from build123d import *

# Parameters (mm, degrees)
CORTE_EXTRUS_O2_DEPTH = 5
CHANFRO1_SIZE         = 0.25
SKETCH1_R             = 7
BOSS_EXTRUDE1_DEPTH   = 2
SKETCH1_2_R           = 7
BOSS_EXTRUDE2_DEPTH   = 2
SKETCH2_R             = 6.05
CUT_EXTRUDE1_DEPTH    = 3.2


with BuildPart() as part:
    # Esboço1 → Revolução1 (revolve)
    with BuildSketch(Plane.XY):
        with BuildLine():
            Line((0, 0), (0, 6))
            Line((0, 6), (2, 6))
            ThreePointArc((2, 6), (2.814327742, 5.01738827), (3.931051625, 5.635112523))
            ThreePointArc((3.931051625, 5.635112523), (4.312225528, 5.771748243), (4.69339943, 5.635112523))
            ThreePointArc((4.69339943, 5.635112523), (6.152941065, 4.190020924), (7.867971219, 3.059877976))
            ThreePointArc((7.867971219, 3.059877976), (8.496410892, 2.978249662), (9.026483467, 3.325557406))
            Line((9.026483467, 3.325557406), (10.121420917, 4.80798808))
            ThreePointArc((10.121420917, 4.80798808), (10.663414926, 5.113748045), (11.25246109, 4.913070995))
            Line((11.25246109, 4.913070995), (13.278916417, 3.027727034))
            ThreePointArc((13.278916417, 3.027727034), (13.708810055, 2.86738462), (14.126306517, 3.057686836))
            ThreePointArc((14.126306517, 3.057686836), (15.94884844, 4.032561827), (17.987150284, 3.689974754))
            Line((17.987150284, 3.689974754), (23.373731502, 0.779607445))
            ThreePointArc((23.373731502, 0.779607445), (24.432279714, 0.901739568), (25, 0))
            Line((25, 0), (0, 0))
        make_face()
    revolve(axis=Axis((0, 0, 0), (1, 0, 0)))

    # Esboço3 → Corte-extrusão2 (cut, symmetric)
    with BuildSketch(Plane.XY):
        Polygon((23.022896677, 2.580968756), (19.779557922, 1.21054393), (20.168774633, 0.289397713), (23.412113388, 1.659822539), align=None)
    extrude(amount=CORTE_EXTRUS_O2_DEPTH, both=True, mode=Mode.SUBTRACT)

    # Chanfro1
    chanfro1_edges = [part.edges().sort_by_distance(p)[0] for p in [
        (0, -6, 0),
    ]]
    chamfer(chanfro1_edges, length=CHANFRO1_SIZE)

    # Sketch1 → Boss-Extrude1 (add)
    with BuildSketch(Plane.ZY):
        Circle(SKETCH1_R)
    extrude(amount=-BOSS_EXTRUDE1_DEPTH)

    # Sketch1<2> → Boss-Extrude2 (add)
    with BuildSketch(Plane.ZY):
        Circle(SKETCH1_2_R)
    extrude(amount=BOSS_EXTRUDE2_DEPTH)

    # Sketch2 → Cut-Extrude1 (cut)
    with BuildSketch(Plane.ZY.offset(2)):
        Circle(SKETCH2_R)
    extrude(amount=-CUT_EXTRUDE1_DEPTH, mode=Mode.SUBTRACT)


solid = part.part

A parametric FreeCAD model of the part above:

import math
import FreeCAD as App
import Part
import Sketcher
from FreeCAD import Vector
Q = App.Units.Quantity


def edges_at(feature, points):
    """Names of the edges that pass closest to the given points."""
    edges = feature.Shape.Edges
    near = lambda p: min(range(len(edges)), key=lambda i: edges[i].distToShape(Part.Vertex(*p))[0])
    return sorted({f"Edge{near(p) + 1}" for p in points})


def add_polygon(sketch, points):
    """Adds a closed chain of lines whose ends are joined by coincident constraints."""
    first, n = sketch.GeometryCount, len(points)
    for a, b in zip(points, points[1:] + points[:1]):
        sketch.addGeometry(Part.LineSegment(App.Vector(*a, 0), App.Vector(*b, 0)), False)
    for i in range(n):
        sketch.addConstraint(Sketcher.Constraint("Coincident", first + i, 2, first + (i + 1) % n, 1))

doc = App.newDocument("Part")
body = doc.addObject("PartDesign::Body", "Body")

# Sketch on XY plane
sketch1 = doc.addObject("Sketcher::SketchObject", "Sketch")
body.addObject(sketch1)
sketch1.AttachmentSupport = (doc.XY_Plane, [""])
sketch1.MapMode = "FlatFace"
sketch1.addGeometry([
    Part.LineSegment(Vector(0, 6, 0), Vector(0, 0, 0)),  # 0
    Part.LineSegment(Vector(0, 0, 0), Vector(25, 0, 0)),  # 1
    Part.ArcOfCircle(Part.Circle(Vector(24, 0, 0), Vector(0, 0, 1), 1), math.radians(0), math.radians(129)),  # 2
    Part.LineSegment(Vector(23.4, 0.8, 0), Vector(18, 3.7, 0)),  # 3
    Part.ArcOfCircle(Part.Circle(Vector(16.5, 0.9, 0), Vector(0, 0, 1), 3.2), math.radians(62), math.radians(137)),  # 4
    Part.ArcOfCircle(Part.Circle(Vector(13.7, 3.5, 0), Vector(0, 0, 1), 0.6), math.radians(-133), math.radians(-43)),  # 5
    Part.LineSegment(Vector(13.3, 3, 0), Vector(11.3, 4.9, 0)),  # 6
    Part.ArcOfCircle(Part.Circle(Vector(10.7, 4.4, 0), Vector(0, 0, 1), 0.8), math.radians(47), math.radians(144)),  # 7
    Part.LineSegment(Vector(10.1, 4.8, 0), Vector(9, 3.3, 0)),  # 8
    Part.ArcOfCircle(Part.Circle(Vector(8.3, 3.9, 0), Vector(0, 0, 1), 0.9), math.radians(-118), math.radians(-36)),  # 9
    Part.ArcOfCircle(Part.Circle(Vector(12.7, 12.3, 0), Vector(0, 0, 1), 10.4), math.radians(-140), math.radians(-118)),  # 10
    Part.ArcOfCircle(Part.Circle(Vector(4.3, 5.2, 0), Vector(0, 0, 1), 0.6), math.radians(51), math.radians(129)),  # 11
    Part.ArcOfCircle(Part.Circle(Vector(3, 6, 0), Vector(0, 0, 1), 1), math.radians(180), math.radians(339)),  # 12
    Part.LineSegment(Vector(2, 6, 0), Vector(0, 6, 0)),  # 13
], False)
sketch1.addConstraint([
    Sketcher.Constraint("Coincident", 0, 2, 1, 1),
    Sketcher.Constraint("Coincident", 1, 2, 2, 1),
    Sketcher.Constraint("Coincident", 2, 2, 3, 1),
    Sketcher.Constraint("Tangent", 3, 2, 4, 1),
    Sketcher.Constraint("Tangent", 4, 2, 5, 2),
    Sketcher.Constraint("Tangent", 5, 1, 6, 1),
    Sketcher.Constraint("Tangent", 6, 2, 7, 1),
    Sketcher.Constraint("Tangent", 7, 2, 8, 1),
    Sketcher.Constraint("Tangent", 8, 2, 9, 2),
    Sketcher.Constraint("Tangent", 9, 1, 10, 2),
    Sketcher.Constraint("Coincident", 10, 1, 11, 1),
    Sketcher.Constraint("Coincident", 11, 2, 12, 2),
    Sketcher.Constraint("Coincident", 12, 1, 13, 1),
    Sketcher.Constraint("Coincident", 13, 2, 0, 1),
    Sketcher.Constraint("Vertical", 0),
    Sketcher.Constraint("Horizontal", 1),
    Sketcher.Constraint("Horizontal", 13),
    Sketcher.Constraint("Coincident", 0, 2, -1, 1),
    Sketcher.Constraint("Equal", 5, 11),
    Sketcher.Constraint("Equal", 2, 12),
    Sketcher.Constraint("PointOnObject", 2, 3, -1),
    Sketcher.Constraint("Horizontal", 10, 1, 11, 2),
    Sketcher.Constraint("Radius", 2, Q("1 mm")),
    Sketcher.Constraint("Radius", 4, Q("3.2 mm")),
    Sketcher.Constraint("Radius", 5, Q("0.6 mm")),
    Sketcher.Constraint("DistanceX", 1, 1, 1, 2, Q("25 mm")),
    Sketcher.Constraint("DistanceX", 13, 2, 13, 1, Q("2 mm")),
    Sketcher.Constraint("DistanceY", 0, 2, 0, 1, Q("6 mm")),
    Sketcher.Constraint("DistanceY", -1, 1, 12, 3, Q("6 mm")),
    Sketcher.Constraint("Radius", 7, Q("0.76137 mm")),
    Sketcher.Constraint("Radius", 9, Q("0.91258 mm")),
    Sketcher.Constraint("Radius", 10, Q("10.402169 mm")),
    Sketcher.Constraint("DistanceY", -1, 1, 10, 3, Q("12.2684 mm")),
    Sketcher.Constraint("DistanceX", -1, 1, 10, 1, Q("4.693399 mm")),
    Sketcher.Constraint("DistanceX", 11, 3, 9, 3, Q("3.9802 mm")),
    Sketcher.Constraint("DistanceX", 7, 3, 3, 2, Q("7.253301 mm")),
    Sketcher.Constraint("Distance", 3, Q("6.12254 mm")),
    Sketcher.Constraint("Distance", 6, Q("2.767859 mm")),
    Sketcher.Constraint("DistanceX", -1, 1, 4, 3, Q("16.466021 mm")),
    Sketcher.Constraint("DistanceY", -1, 1, 4, 3, Q("0.87463 mm")),
    Sketcher.Constraint("DistanceX", -1, 1, 5, 3, Q("13.68761 mm")),
    Sketcher.Constraint("DistanceY", -1, 1, 9, 3, Q("3.867739 mm")),
])
revolution = doc.addObject("PartDesign::Revolution", "Revolution")
body.addObject(revolution)
revolution.Profile = sketch1
revolution.ReferenceAxis = (sketch1, ["H_Axis"])
revolution.Angle = 360

# Sketch on XY plane
sketch2 = doc.addObject("Sketcher::SketchObject", "Sketch001")
body.addObject(sketch2)
sketch2.AttachmentSupport = (doc.XY_Plane, [""])
sketch2.MapMode = "FlatFace"
add_polygon(sketch2, [(23, 2.6), (19.8, 1.2), (20.2, 0.3), (23.4, 1.7)])  # lines 0-3
sketch2.addConstraint([
    Sketcher.Constraint("Perpendicular", 0, 1),
    Sketcher.Constraint("Perpendicular", 1, 2),
    Sketcher.Constraint("Perpendicular", 2, 3),
    Sketcher.Constraint("Distance", 1, Q("1 mm")),
    Sketcher.Constraint("Distance", 0, Q("3.520981 mm")),
    Sketcher.Constraint("DistanceY", -1, 1, 3, 2, Q("2.580969 mm")),
    Sketcher.Constraint("DistanceX", 1, 2, 2, 2, Q("3.243339 mm")),
    Sketcher.Constraint("DistanceX", -1, 1, 0, 2, Q("19.779558 mm")),
])
pocket1 = doc.addObject("PartDesign::Pocket", "Pocket")
body.addObject(pocket1)
pocket1.Profile = sketch2
pocket1.Length = 10
pocket1.Midplane = True
doc.recompute()

chamfer = doc.addObject("PartDesign::Chamfer", "Chamfer")
body.addObject(chamfer)
chamfer.Base = (pocket1, edges_at(pocket1, [(0, -6, 0)]))
chamfer.Size = 0.25

# Sketch on YZ plane
sketch3 = doc.addObject("Sketcher::SketchObject", "Sketch002")
body.addObject(sketch3)
sketch3.AttachmentSupport = (doc.YZ_Plane, [""])
sketch3.MapMode = "FlatFace"
sketch3.addGeometry(Part.Circle(Vector(0, 0, 0), Vector(0, 0, 1), 7), False)
sketch3.addConstraint([
    Sketcher.Constraint("Coincident", 0, 3, -1, 1),
    Sketcher.Constraint("Diameter", 0, Q("14 mm")),
])
pad1 = doc.addObject("PartDesign::Pad", "Pad")
body.addObject(pad1)
pad1.Profile = sketch3
pad1.Length = 2

# Sketch on YZ plane
sketch4 = doc.addObject("Sketcher::SketchObject", "Sketch003")
body.addObject(sketch4)
sketch4.AttachmentSupport = (doc.YZ_Plane, [""])
sketch4.MapMode = "FlatFace"
sketch4.addGeometry(Part.Circle(Vector(0, 0, 0), Vector(0, 0, 1), 7), False)
sketch4.addConstraint([
    Sketcher.Constraint("Coincident", 0, 3, -1, 1),
    Sketcher.Constraint("Diameter", 0, Q("14 mm")),
])
pad2 = doc.addObject("PartDesign::Pad", "Pad001")
body.addObject(pad2)
pad2.Profile = sketch4
pad2.Length = 2
pad2.Reversed = True

# Sketch on YZ plane
sketch5 = doc.addObject("Sketcher::SketchObject", "Sketch004")
body.addObject(sketch5)
sketch5.AttachmentSupport = (doc.YZ_Plane, [""])
sketch5.MapMode = "FlatFace"
sketch5.AttachmentOffset = App.Placement(Vector(0, 0, -2), App.Rotation())
sketch5.addGeometry(Part.Circle(Vector(0, 0, 0), Vector(0, 0, 1), 6), False)
sketch5.addConstraint([
    Sketcher.Constraint("Coincident", 0, 3, -1, 1),
    Sketcher.Constraint("Diameter", 0, Q("12.1 mm")),
])
pocket2 = doc.addObject("PartDesign::Pocket", "Pocket001")
body.addObject(pocket2)
pocket2.Profile = sketch5
pocket2.Length = 3.2
pocket2.Reversed = True

doc.recompute()
